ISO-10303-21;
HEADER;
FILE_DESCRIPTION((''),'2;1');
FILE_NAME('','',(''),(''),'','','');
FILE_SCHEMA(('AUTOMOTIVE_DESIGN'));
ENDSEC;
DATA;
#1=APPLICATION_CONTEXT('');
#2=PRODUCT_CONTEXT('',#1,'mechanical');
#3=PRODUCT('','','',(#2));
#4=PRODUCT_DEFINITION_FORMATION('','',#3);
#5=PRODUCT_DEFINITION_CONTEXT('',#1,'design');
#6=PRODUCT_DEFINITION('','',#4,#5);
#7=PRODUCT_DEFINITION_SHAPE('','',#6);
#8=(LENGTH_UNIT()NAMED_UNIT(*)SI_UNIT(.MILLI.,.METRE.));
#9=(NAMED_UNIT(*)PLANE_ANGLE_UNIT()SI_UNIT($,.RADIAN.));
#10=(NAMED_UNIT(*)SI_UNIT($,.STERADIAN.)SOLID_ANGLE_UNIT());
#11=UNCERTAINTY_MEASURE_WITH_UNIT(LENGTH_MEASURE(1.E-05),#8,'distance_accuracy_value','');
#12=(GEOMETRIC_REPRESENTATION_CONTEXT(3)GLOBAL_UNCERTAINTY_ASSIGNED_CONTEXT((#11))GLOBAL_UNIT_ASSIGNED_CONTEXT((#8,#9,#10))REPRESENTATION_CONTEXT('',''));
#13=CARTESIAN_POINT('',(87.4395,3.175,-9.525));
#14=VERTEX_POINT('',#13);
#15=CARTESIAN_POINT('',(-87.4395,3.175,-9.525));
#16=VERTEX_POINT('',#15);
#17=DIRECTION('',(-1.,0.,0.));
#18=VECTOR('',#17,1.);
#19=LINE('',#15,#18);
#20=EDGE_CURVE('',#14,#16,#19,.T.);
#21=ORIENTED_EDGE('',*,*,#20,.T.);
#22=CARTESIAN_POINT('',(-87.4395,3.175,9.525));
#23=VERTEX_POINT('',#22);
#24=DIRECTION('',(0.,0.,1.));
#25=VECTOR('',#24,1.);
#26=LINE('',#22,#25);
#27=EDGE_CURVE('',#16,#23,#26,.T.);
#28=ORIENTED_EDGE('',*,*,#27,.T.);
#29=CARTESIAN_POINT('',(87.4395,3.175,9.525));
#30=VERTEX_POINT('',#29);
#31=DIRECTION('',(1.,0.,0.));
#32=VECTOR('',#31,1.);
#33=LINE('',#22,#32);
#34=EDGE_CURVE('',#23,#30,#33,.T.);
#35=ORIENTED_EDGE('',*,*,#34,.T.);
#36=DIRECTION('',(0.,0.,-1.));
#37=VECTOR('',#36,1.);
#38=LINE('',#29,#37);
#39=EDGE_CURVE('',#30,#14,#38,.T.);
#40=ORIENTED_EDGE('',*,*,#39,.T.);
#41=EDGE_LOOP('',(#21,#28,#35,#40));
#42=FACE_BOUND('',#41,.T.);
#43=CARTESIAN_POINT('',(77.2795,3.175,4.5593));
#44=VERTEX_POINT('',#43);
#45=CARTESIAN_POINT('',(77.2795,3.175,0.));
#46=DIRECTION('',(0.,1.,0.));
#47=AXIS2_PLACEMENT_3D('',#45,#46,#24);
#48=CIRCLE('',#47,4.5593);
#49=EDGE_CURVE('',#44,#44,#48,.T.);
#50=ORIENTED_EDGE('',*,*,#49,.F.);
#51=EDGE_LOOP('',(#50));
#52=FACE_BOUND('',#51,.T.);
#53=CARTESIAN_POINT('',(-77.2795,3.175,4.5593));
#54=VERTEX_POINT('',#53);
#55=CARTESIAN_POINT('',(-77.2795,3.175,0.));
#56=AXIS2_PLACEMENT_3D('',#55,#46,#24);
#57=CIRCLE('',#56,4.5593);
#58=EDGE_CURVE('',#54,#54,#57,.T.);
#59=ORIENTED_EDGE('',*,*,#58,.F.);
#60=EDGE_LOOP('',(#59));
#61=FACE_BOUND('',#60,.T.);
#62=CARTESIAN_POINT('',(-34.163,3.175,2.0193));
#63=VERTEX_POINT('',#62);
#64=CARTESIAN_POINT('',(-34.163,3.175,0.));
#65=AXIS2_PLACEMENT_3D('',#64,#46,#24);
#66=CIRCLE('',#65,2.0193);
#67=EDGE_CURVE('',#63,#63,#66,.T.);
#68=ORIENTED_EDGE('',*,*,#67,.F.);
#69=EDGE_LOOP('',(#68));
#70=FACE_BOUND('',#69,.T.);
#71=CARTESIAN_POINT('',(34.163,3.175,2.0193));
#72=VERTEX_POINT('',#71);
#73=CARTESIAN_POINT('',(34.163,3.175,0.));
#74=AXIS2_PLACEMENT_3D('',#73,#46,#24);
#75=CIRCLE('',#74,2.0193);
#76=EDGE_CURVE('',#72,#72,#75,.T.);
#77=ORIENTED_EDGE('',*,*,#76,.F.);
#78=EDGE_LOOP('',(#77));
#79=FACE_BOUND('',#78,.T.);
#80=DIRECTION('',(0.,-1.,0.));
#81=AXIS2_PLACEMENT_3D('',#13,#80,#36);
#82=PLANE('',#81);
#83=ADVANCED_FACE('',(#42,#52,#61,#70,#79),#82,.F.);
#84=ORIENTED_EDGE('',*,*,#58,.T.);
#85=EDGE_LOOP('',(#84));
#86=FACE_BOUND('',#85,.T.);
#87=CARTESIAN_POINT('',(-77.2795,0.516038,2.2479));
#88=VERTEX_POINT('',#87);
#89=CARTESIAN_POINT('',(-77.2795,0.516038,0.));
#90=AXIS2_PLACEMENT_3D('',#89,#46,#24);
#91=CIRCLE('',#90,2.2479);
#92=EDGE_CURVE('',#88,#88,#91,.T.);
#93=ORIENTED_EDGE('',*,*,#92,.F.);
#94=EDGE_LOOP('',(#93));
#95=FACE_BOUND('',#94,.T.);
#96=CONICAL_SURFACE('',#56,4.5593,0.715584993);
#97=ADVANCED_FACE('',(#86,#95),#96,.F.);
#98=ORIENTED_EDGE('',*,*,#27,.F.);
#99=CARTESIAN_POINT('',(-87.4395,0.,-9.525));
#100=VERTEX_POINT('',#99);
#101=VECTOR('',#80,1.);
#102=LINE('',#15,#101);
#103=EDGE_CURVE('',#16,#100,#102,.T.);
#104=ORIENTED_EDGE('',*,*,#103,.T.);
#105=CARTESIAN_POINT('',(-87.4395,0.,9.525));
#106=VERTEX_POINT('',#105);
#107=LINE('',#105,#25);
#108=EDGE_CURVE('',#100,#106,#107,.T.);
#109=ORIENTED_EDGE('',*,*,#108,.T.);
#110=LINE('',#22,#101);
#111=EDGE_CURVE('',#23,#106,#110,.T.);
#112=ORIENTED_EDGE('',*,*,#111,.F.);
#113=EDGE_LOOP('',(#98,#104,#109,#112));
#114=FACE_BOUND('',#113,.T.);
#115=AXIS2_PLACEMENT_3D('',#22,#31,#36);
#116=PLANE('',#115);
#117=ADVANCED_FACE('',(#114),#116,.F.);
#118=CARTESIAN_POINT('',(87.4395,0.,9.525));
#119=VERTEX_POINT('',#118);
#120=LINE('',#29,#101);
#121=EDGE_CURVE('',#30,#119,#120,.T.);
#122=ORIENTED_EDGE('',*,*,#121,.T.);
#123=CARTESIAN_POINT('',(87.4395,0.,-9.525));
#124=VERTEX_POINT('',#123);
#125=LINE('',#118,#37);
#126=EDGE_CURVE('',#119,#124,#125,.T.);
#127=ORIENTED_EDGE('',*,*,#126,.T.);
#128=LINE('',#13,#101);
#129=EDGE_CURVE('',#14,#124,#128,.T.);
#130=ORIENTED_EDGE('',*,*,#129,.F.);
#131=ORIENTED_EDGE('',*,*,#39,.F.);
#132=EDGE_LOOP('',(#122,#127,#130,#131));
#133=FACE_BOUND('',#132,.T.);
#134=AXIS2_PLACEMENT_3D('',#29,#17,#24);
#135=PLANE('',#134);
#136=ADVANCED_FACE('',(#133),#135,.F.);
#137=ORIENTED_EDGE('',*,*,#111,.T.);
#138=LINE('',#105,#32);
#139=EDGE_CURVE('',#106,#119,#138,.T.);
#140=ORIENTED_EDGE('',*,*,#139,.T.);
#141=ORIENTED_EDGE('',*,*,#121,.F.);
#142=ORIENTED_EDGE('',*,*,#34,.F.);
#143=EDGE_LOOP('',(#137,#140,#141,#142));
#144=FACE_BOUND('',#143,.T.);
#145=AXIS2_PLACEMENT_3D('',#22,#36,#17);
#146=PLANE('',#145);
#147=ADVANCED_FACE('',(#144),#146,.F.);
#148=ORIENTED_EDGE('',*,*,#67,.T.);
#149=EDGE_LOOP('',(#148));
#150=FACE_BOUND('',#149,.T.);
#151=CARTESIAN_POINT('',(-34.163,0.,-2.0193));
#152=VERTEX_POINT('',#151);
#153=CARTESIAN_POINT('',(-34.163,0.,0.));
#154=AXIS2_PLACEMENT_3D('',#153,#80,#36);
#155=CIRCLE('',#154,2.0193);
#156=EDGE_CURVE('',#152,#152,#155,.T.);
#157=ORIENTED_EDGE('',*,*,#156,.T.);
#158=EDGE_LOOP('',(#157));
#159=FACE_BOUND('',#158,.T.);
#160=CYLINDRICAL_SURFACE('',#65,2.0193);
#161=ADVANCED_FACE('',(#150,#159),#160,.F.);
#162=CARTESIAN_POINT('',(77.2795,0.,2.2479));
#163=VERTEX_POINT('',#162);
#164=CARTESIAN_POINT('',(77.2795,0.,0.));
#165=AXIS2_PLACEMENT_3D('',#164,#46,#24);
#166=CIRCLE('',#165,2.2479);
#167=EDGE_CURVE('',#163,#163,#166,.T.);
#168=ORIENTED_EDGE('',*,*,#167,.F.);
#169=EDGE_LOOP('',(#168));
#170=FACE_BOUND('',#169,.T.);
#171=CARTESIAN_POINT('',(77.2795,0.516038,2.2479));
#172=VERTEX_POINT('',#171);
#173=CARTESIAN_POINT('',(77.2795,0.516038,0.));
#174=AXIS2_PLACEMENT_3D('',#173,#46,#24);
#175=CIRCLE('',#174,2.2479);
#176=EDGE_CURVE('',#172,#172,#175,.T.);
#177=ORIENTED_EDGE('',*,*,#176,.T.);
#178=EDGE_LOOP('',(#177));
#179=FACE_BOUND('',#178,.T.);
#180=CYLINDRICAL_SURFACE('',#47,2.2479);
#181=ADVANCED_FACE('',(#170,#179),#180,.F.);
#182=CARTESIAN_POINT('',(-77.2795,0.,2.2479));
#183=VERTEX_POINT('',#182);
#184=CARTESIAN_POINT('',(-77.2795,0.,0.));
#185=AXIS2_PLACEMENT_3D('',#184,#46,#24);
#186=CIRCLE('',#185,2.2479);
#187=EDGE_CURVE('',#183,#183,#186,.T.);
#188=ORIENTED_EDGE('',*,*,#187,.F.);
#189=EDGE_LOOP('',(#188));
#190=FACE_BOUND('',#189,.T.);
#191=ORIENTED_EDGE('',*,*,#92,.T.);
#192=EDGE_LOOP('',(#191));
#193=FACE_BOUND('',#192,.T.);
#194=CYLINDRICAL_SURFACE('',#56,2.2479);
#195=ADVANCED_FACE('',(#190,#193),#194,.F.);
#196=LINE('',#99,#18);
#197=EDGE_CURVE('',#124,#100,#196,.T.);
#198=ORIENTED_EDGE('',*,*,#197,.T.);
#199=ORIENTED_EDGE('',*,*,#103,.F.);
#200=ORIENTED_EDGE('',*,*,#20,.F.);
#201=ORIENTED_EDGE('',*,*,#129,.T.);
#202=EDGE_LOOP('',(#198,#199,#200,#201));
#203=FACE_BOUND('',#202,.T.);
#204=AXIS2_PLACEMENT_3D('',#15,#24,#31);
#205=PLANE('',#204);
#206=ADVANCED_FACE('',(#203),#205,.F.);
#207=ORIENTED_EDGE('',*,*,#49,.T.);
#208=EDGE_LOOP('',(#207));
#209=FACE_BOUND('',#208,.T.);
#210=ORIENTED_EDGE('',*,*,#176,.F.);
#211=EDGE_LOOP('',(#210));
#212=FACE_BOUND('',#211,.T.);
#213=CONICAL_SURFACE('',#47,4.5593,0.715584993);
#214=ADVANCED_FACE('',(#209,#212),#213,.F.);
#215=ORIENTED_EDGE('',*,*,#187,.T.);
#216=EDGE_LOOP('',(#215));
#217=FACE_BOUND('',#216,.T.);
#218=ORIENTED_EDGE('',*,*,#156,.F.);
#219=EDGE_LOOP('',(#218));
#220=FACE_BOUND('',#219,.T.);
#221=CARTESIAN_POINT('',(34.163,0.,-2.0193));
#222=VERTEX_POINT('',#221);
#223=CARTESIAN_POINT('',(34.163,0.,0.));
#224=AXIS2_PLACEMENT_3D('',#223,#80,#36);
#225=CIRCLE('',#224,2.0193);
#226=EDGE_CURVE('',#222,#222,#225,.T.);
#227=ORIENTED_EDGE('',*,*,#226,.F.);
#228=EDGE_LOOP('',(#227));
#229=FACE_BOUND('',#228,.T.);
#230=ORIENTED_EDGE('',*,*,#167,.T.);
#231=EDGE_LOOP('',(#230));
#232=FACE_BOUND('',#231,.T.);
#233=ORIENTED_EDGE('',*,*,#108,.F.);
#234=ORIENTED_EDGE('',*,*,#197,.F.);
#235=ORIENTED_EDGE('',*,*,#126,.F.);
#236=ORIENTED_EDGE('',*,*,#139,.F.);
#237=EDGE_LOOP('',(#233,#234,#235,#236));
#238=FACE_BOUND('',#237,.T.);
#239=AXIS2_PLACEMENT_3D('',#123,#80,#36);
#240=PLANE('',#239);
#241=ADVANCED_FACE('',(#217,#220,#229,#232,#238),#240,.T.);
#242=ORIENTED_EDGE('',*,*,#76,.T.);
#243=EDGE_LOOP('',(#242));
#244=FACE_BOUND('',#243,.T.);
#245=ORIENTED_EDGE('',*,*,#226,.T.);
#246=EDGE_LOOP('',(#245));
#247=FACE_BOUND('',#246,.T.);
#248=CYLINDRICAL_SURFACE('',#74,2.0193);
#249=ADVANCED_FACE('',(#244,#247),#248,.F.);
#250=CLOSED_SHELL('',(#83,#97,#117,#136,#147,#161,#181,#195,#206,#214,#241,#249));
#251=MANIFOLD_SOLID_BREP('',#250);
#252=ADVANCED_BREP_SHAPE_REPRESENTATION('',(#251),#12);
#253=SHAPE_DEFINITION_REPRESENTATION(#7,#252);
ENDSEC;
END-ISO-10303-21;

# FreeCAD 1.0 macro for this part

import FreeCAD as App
import Part
import Sketcher
from FreeCAD import Vector
Q = App.Units.Quantity

doc = App.newDocument("Part")
body = doc.addObject("PartDesign::Body", "Body")

# Sketch on XZ plane
sketch1 = doc.addObject("Sketcher::SketchObject", "Sketch")
body.addObject(sketch1)
sketch1.AttachmentSupport = (doc.XZ_Plane, [""])
sketch1.MapMode = "FlatFace"
sketch1.addGeometry(Part.LineSegment(Vector(-87, -10, 0), Vector(-87, 10, 0)), False)
sketch1.addGeometry(Part.LineSegment(Vector(-87, 10, 0), Vector(87, 10, 0)), False)
sketch1.addGeometry(Part.LineSegment(Vector(87, 10, 0), Vector(87, -10, 0)), False)
sketch1.addGeometry(Part.LineSegment(Vector(87, -10, 0), Vector(-87, -10, 0)), False)
sketch1.addConstraint(Sketcher.Constraint("Coincident", 0, 2, 1, 1))
sketch1.addConstraint(Sketcher.Constraint("Coincident", 1, 2, 2, 1))
sketch1.addConstraint(Sketcher.Constraint("Coincident", 2, 2, 3, 1))
sketch1.addConstraint(Sketcher.Constraint("Coincident", 3, 2, 0, 1))
sketch1.addConstraint(Sketcher.Constraint("Vertical", 0))
sketch1.addConstraint(Sketcher.Constraint("Horizontal", 1))
sketch1.addConstraint(Sketcher.Constraint("Vertical", 2))
sketch1.addConstraint(Sketcher.Constraint("Horizontal", 3))
sketch1.addConstraint(Sketcher.Constraint("Symmetric", 0, 2, 2, 2, -1, 1))
sketch1.addConstraint(Sketcher.Constraint("DistanceY", 0, 1, 0, 2, Q("0.75 in")))
sketch1.addConstraint(Sketcher.Constraint("DistanceX", 1, 1, 1, 2, Q("6.885 in")))
pad1 = doc.addObject("PartDesign::Pad", "Pad")
body.addObject(pad1)
pad1.Profile = sketch1
pad1.Length = Q("0.125 in")
pad1.Reversed = True

# Sketch on XZ plane
sketch2 = doc.addObject("Sketcher::SketchObject", "Sketch001")
body.addObject(sketch2)
sketch2.AttachmentSupport = (doc.XZ_Plane, [""])
sketch2.MapMode = "FlatFace"
sketch2.AttachmentOffset = App.Placement(Vector(0, 0, -0.125 * 25.4), App.Rotation())
sketch2.addGeometry(Part.Circle(Vector(-34.2, 0, 0), Vector(0, 0, 1), 2), False)
sketch2.addGeometry(Part.Circle(Vector(34.2, 0, 0), Vector(0, 0, 1), 2), False)
sketch2.addConstraint(Sketcher.Constraint("Equal", 0, 1))
sketch2.addConstraint(Sketcher.Constraint("Symmetric", 0, 3, 1, 3, -1, 1))
sketch2.addConstraint(Sketcher.Constraint("PointOnObject", 0, 3, -1))
sketch2.addConstraint(Sketcher.Constraint("Diameter", 0, Q("0.159 in")))
sketch2.addConstraint(Sketcher.Constraint("DistanceX", 0, 3, 1, 3, Q("2.69 in")))
doc.recompute()
hole = doc.addObject("PartDesign::Hole", "Hole")
body.addObject(hole)
hole.Profile = sketch2
hole.ThreadType = "None"
hole.Diameter = Q("0.159 in")
hole.DepthType = "Dimension"
hole.Depth = Q("0.47 in")
hole.DrillPoint = "Angled"
hole.DrillPointAngle = 118
hole.Reversed = True

# Sketch on YZ plane
sketch3 = doc.addObject("Sketcher::SketchObject", "Sketch002")
body.addObject(sketch3)
sketch3.AttachmentSupport = (doc.YZ_Plane, [""])
sketch3.MapMode = "FlatFace"
sketch3.AttachmentOffset = App.Placement(Vector(0, 0, -3.0425 * 25.4), App.Rotation())
sketch3.addGeometry(Part.LineSegment(Vector(0, 0, 0), Vector(3.2, 0, 0)), False)
sketch3.addGeometry(Part.LineSegment(Vector(3.2, 0, 0), Vector(3.2, 4.6, 0)), False)
sketch3.addGeometry(Part.LineSegment(Vector(3.2, 4.6, 0), Vector(0.5, 2.2, 0)), False)
sketch3.addGeometry(Part.LineSegment(Vector(0.5, 2.2, 0), Vector(0, 2.2, 0)), False)
sketch3.addGeometry(Part.LineSegment(Vector(0, 2.2, 0), Vector(0, 0, 0)), False)
sketch3.addConstraint(Sketcher.Constraint("Coincident", 0, 2, 1, 1))
sketch3.addConstraint(Sketcher.Constraint("Coincident", 1, 2, 2, 1))
sketch3.addConstraint(Sketcher.Constraint("Coincident", 2, 2, 3, 1))
sketch3.addConstraint(Sketcher.Constraint("Coincident", 3, 2, 4, 1))
sketch3.addConstraint(Sketcher.Constraint("Coincident", 4, 2, 0, 1))
sketch3.addConstraint(Sketcher.Constraint("Horizontal", 0))
sketch3.addConstraint(Sketcher.Constraint("Vertical", 1))
sketch3.addConstraint(Sketcher.Constraint("Horizontal", 3))
sketch3.addConstraint(Sketcher.Constraint("Vertical", 4))
sketch3.addConstraint(Sketcher.Constraint("Coincident", 4, 2, -1, 1))
sketch3.addConstraint(Sketcher.Constraint("Angle", 2, Q("-139 deg")))
sketch3.addConstraint(Sketcher.Constraint("DistanceX", 0, 1, 0, 2, Q("0.125 in")))
sketch3.addConstraint(Sketcher.Constraint("DistanceY", 1, 1, 1, 2, Q("0.1795 in")))
sketch3.addConstraint(Sketcher.Constraint("DistanceY", 4, 2, 4, 1, Q("0.0885 in")))
groove = doc.addObject("PartDesign::Groove", "Groove")
body.addObject(groove)
groove.Profile = sketch3
groove.ReferenceAxis = (sketch3, ["H_Axis"])
groove.Angle = 360
doc.recompute()

linearpattern = doc.addObject("PartDesign::LinearPattern", "LinearPattern")
body.addObject(linearpattern)
linearpattern.Originals = [groove]
linearpattern.Direction = (doc.X_Axis, [""])
linearpattern.Mode = "offset"
linearpattern.Offset = Q("6.085 in")
linearpattern.Occurrences = 2
body.Tip = linearpattern

doc.recompute()
